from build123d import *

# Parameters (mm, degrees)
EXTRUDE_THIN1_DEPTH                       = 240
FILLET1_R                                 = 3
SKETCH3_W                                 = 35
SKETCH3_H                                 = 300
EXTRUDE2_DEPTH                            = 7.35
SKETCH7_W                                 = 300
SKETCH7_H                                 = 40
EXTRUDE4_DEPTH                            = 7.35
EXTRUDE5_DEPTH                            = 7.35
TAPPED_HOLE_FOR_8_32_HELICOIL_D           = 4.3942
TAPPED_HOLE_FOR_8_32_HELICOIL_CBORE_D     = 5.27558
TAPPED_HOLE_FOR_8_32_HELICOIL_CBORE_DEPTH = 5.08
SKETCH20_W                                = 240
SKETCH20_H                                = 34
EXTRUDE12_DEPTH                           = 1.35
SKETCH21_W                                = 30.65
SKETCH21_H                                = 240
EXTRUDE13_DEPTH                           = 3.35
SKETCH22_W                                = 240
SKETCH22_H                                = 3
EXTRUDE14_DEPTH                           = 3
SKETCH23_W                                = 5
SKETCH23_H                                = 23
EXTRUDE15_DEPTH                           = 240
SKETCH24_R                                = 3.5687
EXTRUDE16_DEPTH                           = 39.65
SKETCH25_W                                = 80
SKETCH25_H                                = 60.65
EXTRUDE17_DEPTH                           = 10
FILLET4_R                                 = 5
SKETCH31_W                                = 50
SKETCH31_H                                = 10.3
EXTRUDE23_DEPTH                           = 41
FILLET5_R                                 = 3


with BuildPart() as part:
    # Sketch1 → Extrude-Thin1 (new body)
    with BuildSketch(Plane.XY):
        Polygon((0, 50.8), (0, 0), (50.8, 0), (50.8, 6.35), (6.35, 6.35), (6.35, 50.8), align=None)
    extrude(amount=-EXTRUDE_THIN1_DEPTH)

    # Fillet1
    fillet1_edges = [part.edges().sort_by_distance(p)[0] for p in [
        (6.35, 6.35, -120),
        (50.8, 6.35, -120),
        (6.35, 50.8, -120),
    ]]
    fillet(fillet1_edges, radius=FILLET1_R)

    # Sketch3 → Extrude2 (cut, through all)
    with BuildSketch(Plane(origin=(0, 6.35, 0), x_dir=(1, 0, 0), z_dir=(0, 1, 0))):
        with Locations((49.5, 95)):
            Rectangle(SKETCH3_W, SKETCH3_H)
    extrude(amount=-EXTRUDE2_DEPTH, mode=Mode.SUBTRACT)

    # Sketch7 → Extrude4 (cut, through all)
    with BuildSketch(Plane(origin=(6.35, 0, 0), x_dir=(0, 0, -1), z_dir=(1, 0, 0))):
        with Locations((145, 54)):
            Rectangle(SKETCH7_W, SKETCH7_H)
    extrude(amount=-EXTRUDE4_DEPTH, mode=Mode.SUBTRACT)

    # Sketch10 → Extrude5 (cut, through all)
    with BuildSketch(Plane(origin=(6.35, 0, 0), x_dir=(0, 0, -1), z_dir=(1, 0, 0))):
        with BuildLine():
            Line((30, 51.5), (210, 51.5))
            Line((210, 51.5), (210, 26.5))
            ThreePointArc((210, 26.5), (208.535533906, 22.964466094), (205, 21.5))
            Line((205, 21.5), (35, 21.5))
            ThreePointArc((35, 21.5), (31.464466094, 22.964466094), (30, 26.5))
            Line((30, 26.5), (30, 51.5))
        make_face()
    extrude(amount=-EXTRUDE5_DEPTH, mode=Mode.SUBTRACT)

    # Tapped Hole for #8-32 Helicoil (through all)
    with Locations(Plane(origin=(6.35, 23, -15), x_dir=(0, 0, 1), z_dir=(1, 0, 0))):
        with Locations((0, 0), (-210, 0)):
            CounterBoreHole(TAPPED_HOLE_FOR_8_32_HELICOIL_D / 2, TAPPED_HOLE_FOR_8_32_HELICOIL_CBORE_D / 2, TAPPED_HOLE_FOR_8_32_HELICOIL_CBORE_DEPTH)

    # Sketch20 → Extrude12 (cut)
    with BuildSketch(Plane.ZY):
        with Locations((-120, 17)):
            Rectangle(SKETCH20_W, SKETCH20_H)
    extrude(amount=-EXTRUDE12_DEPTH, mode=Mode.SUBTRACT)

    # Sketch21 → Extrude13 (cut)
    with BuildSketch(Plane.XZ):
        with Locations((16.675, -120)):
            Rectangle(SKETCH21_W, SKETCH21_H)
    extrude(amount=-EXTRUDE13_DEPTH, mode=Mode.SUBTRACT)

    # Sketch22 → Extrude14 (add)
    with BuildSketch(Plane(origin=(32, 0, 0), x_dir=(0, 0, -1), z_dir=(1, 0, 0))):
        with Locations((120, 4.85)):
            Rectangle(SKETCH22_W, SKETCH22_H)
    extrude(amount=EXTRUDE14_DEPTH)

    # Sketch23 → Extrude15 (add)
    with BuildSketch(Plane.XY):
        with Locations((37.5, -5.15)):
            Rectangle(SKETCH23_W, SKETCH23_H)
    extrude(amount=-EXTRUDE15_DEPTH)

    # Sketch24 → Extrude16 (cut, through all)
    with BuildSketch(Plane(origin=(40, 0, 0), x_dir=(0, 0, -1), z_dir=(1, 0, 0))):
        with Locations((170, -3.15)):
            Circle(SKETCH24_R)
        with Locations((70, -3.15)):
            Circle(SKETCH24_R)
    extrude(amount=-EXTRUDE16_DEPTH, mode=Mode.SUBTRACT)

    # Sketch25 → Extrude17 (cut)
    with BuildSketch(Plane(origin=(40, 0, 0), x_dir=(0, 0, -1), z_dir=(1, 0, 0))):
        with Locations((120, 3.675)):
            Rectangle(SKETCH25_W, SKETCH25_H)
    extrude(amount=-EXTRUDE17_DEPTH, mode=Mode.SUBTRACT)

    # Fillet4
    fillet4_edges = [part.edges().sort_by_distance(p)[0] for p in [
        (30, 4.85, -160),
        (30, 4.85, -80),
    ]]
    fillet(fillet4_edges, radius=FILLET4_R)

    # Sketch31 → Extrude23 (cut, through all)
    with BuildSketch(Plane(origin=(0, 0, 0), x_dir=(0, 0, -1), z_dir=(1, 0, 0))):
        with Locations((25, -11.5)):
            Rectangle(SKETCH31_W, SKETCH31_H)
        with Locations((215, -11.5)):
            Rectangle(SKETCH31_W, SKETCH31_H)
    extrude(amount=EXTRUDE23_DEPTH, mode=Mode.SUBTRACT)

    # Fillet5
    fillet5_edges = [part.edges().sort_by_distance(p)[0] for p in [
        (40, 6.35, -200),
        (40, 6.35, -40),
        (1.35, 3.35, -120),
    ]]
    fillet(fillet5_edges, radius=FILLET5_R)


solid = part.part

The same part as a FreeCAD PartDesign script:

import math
import FreeCAD as App
import Part
import Sketcher

V = App.Vector


def edges_at(feature, points):
    """Names of the edges that pass closest to the given points."""
    edges = feature.Shape.Edges
    near = lambda p: min(range(len(edges)), key=lambda i: edges[i].distToShape(Part.Vertex(*p))[0])
    return sorted({f"Edge{near(p) + 1}" for p in points})

doc = App.newDocument("Part")
body = doc.addObject("PartDesign::Body", "Body")

# Sketch on XY plane
sketch1 = body.newObject("Sketcher::SketchObject", "Sketch")
sketch1.AttachmentSupport = (doc.getObject("XY_Plane"), [""])
sketch1.MapMode = "FlatFace"
sketch1.addGeometry(Part.LineSegment(V(0, 51, 0), V(0, 0, 0)), False)
sketch1.addGeometry(Part.LineSegment(V(0, 0, 0), V(51, 0, 0)), False)
sketch1.addGeometry(Part.LineSegment(V(51, 0, 0), V(51, 6, 0)), False)
sketch1.addGeometry(Part.LineSegment(V(51, 6, 0), V(6, 6, 0)), False)
sketch1.addGeometry(Part.LineSegment(V(6, 6, 0), V(6, 51, 0)), False)
sketch1.addGeometry(Part.LineSegment(V(6, 51, 0), V(0, 51, 0)), False)
sketch1.addConstraint(Sketcher.Constraint("Coincident", 0, 2, 1, 1))
sketch1.addConstraint(Sketcher.Constraint("Coincident", 1, 2, 2, 1))
sketch1.addConstraint(Sketcher.Constraint("Coincident", 2, 2, 3, 1))
sketch1.addConstraint(Sketcher.Constraint("Coincident", 3, 2, 4, 1))
sketch1.addConstraint(Sketcher.Constraint("Coincident", 4, 2, 5, 1))
sketch1.addConstraint(Sketcher.Constraint("Coincident", 5, 2, 0, 1))
sketch1.addConstraint(Sketcher.Constraint("Vertical", 0))
sketch1.addConstraint(Sketcher.Constraint("Horizontal", 1))
sketch1.addConstraint(Sketcher.Constraint("Vertical", 2))
sketch1.addConstraint(Sketcher.Constraint("Horizontal", 3))
sketch1.addConstraint(Sketcher.Constraint("Vertical", 4))
sketch1.addConstraint(Sketcher.Constraint("Horizontal", 5))
sketch1.addConstraint(Sketcher.Constraint("Coincident", 0, 2, -1, 1))
sketch1.addConstraint(Sketcher.Constraint("Equal", 1, 0))
sketch1.addConstraint(Sketcher.Constraint("Equal", 5, 2))
sketch1.addConstraint(Sketcher.Constraint("DistanceX", 1, 1, 1, 2, 50.8))
sketch1.addConstraint(Sketcher.Constraint("DistanceX", 3, 2, 3, 1, 44.45))
pad1 = body.newObject("PartDesign::Pad", "Pad")
pad1.Profile = sketch1
pad1.Length = 240
pad1.Reversed = True
doc.recompute()

fillet = body.newObject("PartDesign::Fillet", "Fillet")
fillet.Base = (pad1, edges_at(pad1, [(6.35, 6.35, -120), (50.8, 6.35, -120), (6.35, 50.8, -120)]))
fillet.Radius = 3

# Sketch on XZ plane
sketch2 = body.newObject("Sketcher::SketchObject", "Sketch001")
sketch2.AttachmentSupport = (doc.getObject("XZ_Plane"), [""])
sketch2.MapMode = "FlatFace"
sketch2.AttachmentOffset = App.Placement(V(0, 0, -6.35), App.Rotation())
sketch2.addGeometry(Part.LineSegment(V(32, -245, 0), V(32, 55, 0)), False)
sketch2.addGeometry(Part.LineSegment(V(32, 55, 0), V(67, 55, 0)), False)
sketch2.addGeometry(Part.LineSegment(V(67, 55, 0), V(67, -245, 0)), False)
sketch2.addGeometry(Part.LineSegment(V(67, -245, 0), V(32, -245, 0)), False)
sketch2.addConstraint(Sketcher.Constraint("Coincident", 0, 2, 1, 1))
sketch2.addConstraint(Sketcher.Constraint("Coincident", 1, 2, 2, 1))
sketch2.addConstraint(Sketcher.Constraint("Coincident", 2, 2, 3, 1))
sketch2.addConstraint(Sketcher.Constraint("Coincident", 3, 2, 0, 1))
sketch2.addConstraint(Sketcher.Constraint("Vertical", 0))
sketch2.addConstraint(Sketcher.Constraint("Horizontal", 1))
sketch2.addConstraint(Sketcher.Constraint("Vertical", 2))
sketch2.addConstraint(Sketcher.Constraint("Horizontal", 3))
sketch2.addConstraint(Sketcher.Constraint("DistanceX", 1, 1, 1, 2, 35.0))
sketch2.addConstraint(Sketcher.Constraint("DistanceY", 0, 1, 0, 2, 300.0))
sketch2.addConstraint(Sketcher.Constraint("DistanceX", -1, 1, 0, 2, 32.0))
sketch2.addConstraint(Sketcher.Constraint("DistanceY", -1, 1, 0, 2, 55.0))
pocket1 = body.newObject("PartDesign::Pocket", "Pocket")
pocket1.Profile = sketch2
pocket1.Type = "ThroughAll"
pocket1.Reversed = True

# Sketch on YZ plane
sketch3 = body.newObject("Sketcher::SketchObject", "Sketch002")
sketch3.AttachmentSupport = (doc.getObject("YZ_Plane"), [""])
sketch3.MapMode = "FlatFace"
sketch3.AttachmentOffset = App.Placement(V(0, 0, 6.35), App.Rotation())
sketch3.addGeometry(Part.LineSegment(V(74, 5, 0), V(34, 5, 0)), False)
sketch3.addGeometry(Part.LineSegment(V(34, 5, 0), V(34, -295, 0)), False)
sketch3.addGeometry(Part.LineSegment(V(34, -295, 0), V(74, -295, 0)), False)
sketch3.addGeometry(Part.LineSegment(V(74, -295, 0), V(74, 5, 0)), False)
sketch3.addConstraint(Sketcher.Constraint("Coincident", 0, 2, 1, 1))
sketch3.addConstraint(Sketcher.Constraint("Coincident", 1, 2, 2, 1))
sketch3.addConstraint(Sketcher.Constraint("Coincident", 2, 2, 3, 1))
sketch3.addConstraint(Sketcher.Constraint("Coincident", 3, 2, 0, 1))
sketch3.addConstraint(Sketcher.Constraint("Horizontal", 0))
sketch3.addConstraint(Sketcher.Constraint("Vertical", 1))
sketch3.addConstraint(Sketcher.Constraint("Horizontal", 2))
sketch3.addConstraint(Sketcher.Constraint("Vertical", 3))
sketch3.addConstraint(Sketcher.Constraint("DistanceX", 0, 2, 0, 1, 40.0))
sketch3.addConstraint(Sketcher.Constraint("DistanceY", 1, 2, 1, 1, 300.0))
sketch3.addConstraint(Sketcher.Constraint("DistanceX", -1, 1, 0, 2, 34.0))
sketch3.addConstraint(Sketcher.Constraint("DistanceY", -1, 1, 0, 2, 5.0))
pocket2 = body.newObject("PartDesign::Pocket", "Pocket001")
pocket2.Profile = sketch3
pocket2.Type = "ThroughAll"

# Sketch on YZ plane
sketch4 = body.newObject("Sketcher::SketchObject", "Sketch003")
sketch4.AttachmentSupport = (doc.getObject("YZ_Plane"), [""])
sketch4.MapMode = "FlatFace"
sketch4.AttachmentOffset = App.Placement(V(0, 0, 6.35), App.Rotation())
sketch4.addGeometry(Part.LineSegment(V(52, -210, 0), V(52, -30, 0)), False)
sketch4.addGeometry(Part.LineSegment(V(52, -30, 0), V(26, -30, 0)), False)
sketch4.addGeometry(Part.ArcOfCircle(Part.Circle(V(26, -35, 0), V(0, 0, 1), 5), math.radians(90), math.radians(180)), False)
sketch4.addGeometry(Part.LineSegment(V(22, -35, 0), V(22, -205, 0)), False)
sketch4.addGeometry(Part.ArcOfCircle(Part.Circle(V(26, -205, 0), V(0, 0, 1), 5), math.radians(180), math.radians(270)), False)
sketch4.addGeometry(Part.LineSegment(V(26, -210, 0), V(52, -210, 0)), False)
sketch4.addConstraint(Sketcher.Constraint("Coincident", 0, 2, 1, 1))
sketch4.addConstraint(Sketcher.Constraint("Tangent", 1, 2, 2, 1))
sketch4.addConstraint(Sketcher.Constraint("Tangent", 2, 2, 3, 1))
sketch4.addConstraint(Sketcher.Constraint("Tangent", 3, 2, 4, 1))
sketch4.addConstraint(Sketcher.Constraint("Tangent", 4, 2, 5, 1))
sketch4.addConstraint(Sketcher.Constraint("Coincident", 5, 2, 0, 1))
sketch4.addConstraint(Sketcher.Constraint("Vertical", 0))
sketch4.addConstraint(Sketcher.Constraint("Horizontal", 1))
sketch4.addConstraint(Sketcher.Constraint("Vertical", 3))
sketch4.addConstraint(Sketcher.Constraint("Horizontal", 5))
sketch4.addConstraint(Sketcher.Constraint("Equal", 2, 4))
sketch4.addConstraint(Sketcher.Constraint("Radius", 2, 5.0))
sketch4.addConstraint(Sketcher.Constraint("DistanceX", 1, 2, 1, 1, 25.0))
sketch4.addConstraint(Sketcher.Constraint("DistanceY", 0, 1, 0, 2, 180.0))
sketch4.addConstraint(Sketcher.Constraint("DistanceY", 2, 3, -1, 1, 35.0))
sketch4.addConstraint(Sketcher.Constraint("DistanceX", -1, 1, 2, 3, 26.5))
pocket3 = body.newObject("PartDesign::Pocket", "Pocket002")
pocket3.Profile = sketch4
pocket3.Type = "ThroughAll"

# Sketch on YZ plane
sketch5 = body.newObject("Sketcher::SketchObject", "Sketch004")
sketch5.AttachmentSupport = (doc.getObject("YZ_Plane"), [""])
sketch5.MapMode = "FlatFace"
sketch5.AttachmentOffset = App.Placement(V(0, 0, 6.35), App.Rotation())
sketch5.addGeometry(Part.Circle(V(23, -15, 0), V(0, 0, 1), 2.2), False)
sketch5.addGeometry(Part.Circle(V(23, -225, 0), V(0, 0, 1), 2.2), False)
sketch5.addConstraint(Sketcher.Constraint("Equal", 0, 1))
sketch5.addConstraint(Sketcher.Constraint("Vertical", 0, 3, 1, 3))
sketch5.addConstraint(Sketcher.Constraint("DistanceX", -1, 1, 0, 3, 23.0))
sketch5.addConstraint(Sketcher.Constraint("DistanceY", 0, 3, -1, 1, 15.0))
sketch5.addConstraint(Sketcher.Constraint("DistanceY", 1, 3, -1, 1, 225.0))
sketch5.addConstraint(Sketcher.Constraint("Diameter", 0, 4.3942))
doc.recompute()
hole = body.newObject("PartDesign::Hole", "Hole")
hole.Profile = sketch5
hole.ThreadType = "None"
hole.Diameter = 4.3942
hole.DepthType = "ThroughAll"
hole.HoleCutType = "Counterbore"
hole.HoleCutDiameter = 5.27558
hole.HoleCutDepth = 5.08

# Sketch on YZ plane
sketch6 = body.newObject("Sketcher::SketchObject", "Sketch005")
sketch6.AttachmentSupport = (doc.getObject("YZ_Plane"), [""])
sketch6.MapMode = "FlatFace"
sketch6.addGeometry(Part.LineSegment(V(34, -240, 0), V(0, -240, 0)), False)
sketch6.addGeometry(Part.LineSegment(V(0, -240, 0), V(0, 0, 0)), False)
sketch6.addGeometry(Part.LineSegment(V(0, 0, 0), V(34, 0, 0)), False)
sketch6.addGeometry(Part.LineSegment(V(34, 0, 0), V(34, -240, 0)), False)
sketch6.addConstraint(Sketcher.Constraint("Coincident", 0, 2, 1, 1))
sketch6.addConstraint(Sketcher.Constraint("Coincident", 1, 2, 2, 1))
sketch6.addConstraint(Sketcher.Constraint("Coincident", 2, 2, 3, 1))
sketch6.addConstraint(Sketcher.Constraint("Coincident", 3, 2, 0, 1))
sketch6.addConstraint(Sketcher.Constraint("Horizontal", 0))
sketch6.addConstraint(Sketcher.Constraint("Vertical", 1))
sketch6.addConstraint(Sketcher.Constraint("Horizontal", 2))
sketch6.addConstraint(Sketcher.Constraint("Vertical", 3))
sketch6.addConstraint(Sketcher.Constraint("Coincident", 1, 2, -1, 1))
sketch6.addConstraint(Sketcher.Constraint("DistanceX", 0, 2, 0, 1, 34.0))
sketch6.addConstraint(Sketcher.Constraint("DistanceY", 1, 1, 1, 2, 240.0))
pocket4 = body.newObject("PartDesign::Pocket", "Pocket003")
pocket4.Profile = sketch6
pocket4.Length = 1.35
pocket4.Reversed = True

# Sketch on XZ plane
sketch7 = body.newObject("Sketcher::SketchObject", "Sketch006")
sketch7.AttachmentSupport = (doc.getObject("XZ_Plane"), [""])
sketch7.MapMode = "FlatFace"
sketch7.addGeometry(Part.LineSegment(V(1, 0, 0), V(1, -240, 0)), False)
sketch7.addGeometry(Part.LineSegment(V(1, -240, 0), V(32, -240, 0)), False)
sketch7.addGeometry(Part.LineSegment(V(32, -240, 0), V(32, 0, 0)), False)
sketch7.addGeometry(Part.LineSegment(V(32, 0, 0), V(1, 0, 0)), False)
sketch7.addConstraint(Sketcher.Constraint("Coincident", 0, 2, 1, 1))
sketch7.addConstraint(Sketcher.Constraint("Coincident", 1, 2, 2, 1))
sketch7.addConstraint(Sketcher.Constraint("Coincident", 2, 2, 3, 1))
sketch7.addConstraint(Sketcher.Constraint("Coincident", 3, 2, 0, 1))
sketch7.addConstraint(Sketcher.Constraint("Vertical", 0))
sketch7.addConstraint(Sketcher.Constraint("Horizontal", 1))
sketch7.addConstraint(Sketcher.Constraint("Vertical", 2))
sketch7.addConstraint(Sketcher.Constraint("Horizontal", 3))
sketch7.addConstraint(Sketcher.Constraint("PointOnObject", 2, 2, -1))
sketch7.addConstraint(Sketcher.Constraint("DistanceY", 0, 2, 0, 1, 240.0))
sketch7.addConstraint(Sketcher.Constraint("DistanceX", -1, 1, 1, 2, 32.0))
sketch7.addConstraint(Sketcher.Constraint("DistanceX", 1, 1, 1, 2, 30.65))
pocket5 = body.newObject("PartDesign::Pocket", "Pocket004")
pocket5.Profile = sketch7
pocket5.Length = 3.35

# Sketch on YZ plane
sketch8 = body.newObject("Sketcher::SketchObject", "Sketch007")
sketch8.AttachmentSupport = (doc.getObject("YZ_Plane"), [""])
sketch8.MapMode = "FlatFace"
sketch8.AttachmentOffset = App.Placement(V(0, 0, 32), App.Rotation())
sketch8.addGeometry(Part.LineSegment(V(6.3, 0, 0), V(3.4, 0, 0)), False)
sketch8.addGeometry(Part.LineSegment(V(3.4, 0, 0), V(3.4, -240, 0)), False)
sketch8.addGeometry(Part.LineSegment(V(3.4, -240, 0), V(6.3, -240, 0)), False)
sketch8.addGeometry(Part.LineSegment(V(6.3, -240, 0), V(6.3, 0, 0)), False)
sketch8.addConstraint(Sketcher.Constraint("Coincident", 0, 2, 1, 1))
sketch8.addConstraint(Sketcher.Constraint("Coincident", 1, 2, 2, 1))
sketch8.addConstraint(Sketcher.Constraint("Coincident", 2, 2, 3, 1))
sketch8.addConstraint(Sketcher.Constraint("Coincident", 3, 2, 0, 1))
sketch8.addConstraint(Sketcher.Constraint("Horizontal", 0))
sketch8.addConstraint(Sketcher.Constraint("Vertical", 1))
sketch8.addConstraint(Sketcher.Constraint("Horizontal", 2))
sketch8.addConstraint(Sketcher.Constraint("Vertical", 3))
sketch8.addConstraint(Sketcher.Constraint("PointOnObject", 0, 2, -1))
sketch8.addConstraint(Sketcher.Constraint("DistanceX", 0, 2, 0, 1, 3.0))
sketch8.addConstraint(Sketcher.Constraint("DistanceY", 1, 2, 1, 1, 240.0))
sketch8.addConstraint(Sketcher.Constraint("DistanceX", -1, 1, 0, 2, 3.35))
pad2 = body.newObject("PartDesign::Pad", "Pad001")
pad2.Profile = sketch8
pad2.Length = 3

# Sketch on XY plane
sketch9 = body.newObject("Sketcher::SketchObject", "Sketch008")
sketch9.AttachmentSupport = (doc.getObject("XY_Plane"), [""])
sketch9.MapMode = "FlatFace"
sketch9.addGeometry(Part.LineSegment(V(35, 6, 0), V(35, -17, 0)), False)
sketch9.addGeometry(Part.LineSegment(V(35, -17, 0), V(40, -17, 0)), False)
sketch9.addGeometry(Part.LineSegment(V(40, -17, 0), V(40, 6, 0)), False)
sketch9.addGeometry(Part.LineSegment(V(40, 6, 0), V(35, 6, 0)), False)
sketch9.addConstraint(Sketcher.Constraint("Coincident", 0, 2, 1, 1))
sketch9.addConstraint(Sketcher.Constraint("Coincident", 1, 2, 2, 1))
sketch9.addConstraint(Sketcher.Constraint("Coincident", 2, 2, 3, 1))
sketch9.addConstraint(Sketcher.Constraint("Coincident", 3, 2, 0, 1))
sketch9.addConstraint(Sketcher.Constraint("Vertical", 0))
sketch9.addConstraint(Sketcher.Constraint("Horizontal", 1))
sketch9.addConstraint(Sketcher.Constraint("Vertical", 2))
sketch9.addConstraint(Sketcher.Constraint("Horizontal", 3))
sketch9.addConstraint(Sketcher.Constraint("DistanceX", 1, 1, 1, 2, 5.0))
sketch9.addConstraint(Sketcher.Constraint("DistanceY", 0, 2, 0, 1, 23.0))
sketch9.addConstraint(Sketcher.Constraint("DistanceX", -1, 1, 0, 2, 35.0))
sketch9.addConstraint(Sketcher.Constraint("DistanceY", 0, 2, -1, 1, 16.65))
pad3 = body.newObject("PartDesign::Pad", "Pad002")
pad3.Profile = sketch9
pad3.Length = 240
pad3.Reversed = True

# Sketch on YZ plane
sketch10 = body.newObject("Sketcher::SketchObject", "Sketch009")
sketch10.AttachmentSupport = (doc.getObject("YZ_Plane"), [""])
sketch10.MapMode = "FlatFace"
sketch10.AttachmentOffset = App.Placement(V(0, 0, 40), App.Rotation())
sketch10.addGeometry(Part.Circle(V(-3.1, -170, 0), V(0, 0, 1), 3.6), False)
sketch10.addGeometry(Part.Circle(V(-3.1, -70, 0), V(0, 0, 1), 3.6), False)
sketch10.addConstraint(Sketcher.Constraint("Equal", 0, 1))
sketch10.addConstraint(Sketcher.Constraint("Vertical", 0, 3, 1, 3))
sketch10.addConstraint(Sketcher.Constraint("DistanceY", 0, 3, -1, 1, 170.0))
sketch10.addConstraint(Sketcher.Constraint("DistanceY", 1, 3, -1, 1, 70.0))
sketch10.addConstraint(Sketcher.Constraint("Diameter", 0, 7.1374))
sketch10.addConstraint(Sketcher.Constraint("DistanceX", 0, 3, -1, 1, 3.15))
pocket6 = body.newObject("PartDesign::Pocket", "Pocket005")
pocket6.Profile = sketch10
pocket6.Type = "ThroughAll"

# Sketch on YZ plane
sketch11 = body.newObject("Sketcher::SketchObject", "Sketch010")
sketch11.AttachmentSupport = (doc.getObject("YZ_Plane"), [""])
sketch11.MapMode = "FlatFace"
sketch11.AttachmentOffset = App.Placement(V(0, 0, 40), App.Rotation())
sketch11.addGeometry(Part.LineSegment(V(34, -80, 0), V(-27, -80, 0)), False)
sketch11.addGeometry(Part.LineSegment(V(-27, -80, 0), V(-27, -160, 0)), False)
sketch11.addGeometry(Part.LineSegment(V(-27, -160, 0), V(34, -160, 0)), False)
sketch11.addGeometry(Part.LineSegment(V(34, -160, 0), V(34, -80, 0)), False)
sketch11.addConstraint(Sketcher.Constraint("Coincident", 0, 2, 1, 1))
sketch11.addConstraint(Sketcher.Constraint("Coincident", 1, 2, 2, 1))
sketch11.addConstraint(Sketcher.Constraint("Coincident", 2, 2, 3, 1))
sketch11.addConstraint(Sketcher.Constraint("Coincident", 3, 2, 0, 1))
sketch11.addConstraint(Sketcher.Constraint("Horizontal", 0))
sketch11.addConstraint(Sketcher.Constraint("Vertical", 1))
sketch11.addConstraint(Sketcher.Constraint("Horizontal", 2))
sketch11.addConstraint(Sketcher.Constraint("Vertical", 3))
sketch11.addConstraint(Sketcher.Constraint("DistanceY", 1, 2, 1, 1, 80.0))
sketch11.addConstraint(Sketcher.Constraint("DistanceY", 0, 2, -1, 1, 80.0))
sketch11.addConstraint(Sketcher.Constraint("DistanceX", -1, 1, 2, 2, 34.0))
sketch11.addConstraint(Sketcher.Constraint("DistanceX", 0, 2, 0, 1, 60.65))
pocket7 = body.newObject("PartDesign::Pocket", "Pocket006")
pocket7.Profile = sketch11
pocket7.Length = 10
doc.recompute()

fillet2 = body.newObject("PartDesign::Fillet", "Fillet001")
fillet2.Base = (pocket7, edges_at(pocket7, [(30, 4.85, -160), (30, 4.85, -80)]))
fillet2.Radius = 5

# Sketch on YZ plane
sketch12 = body.newObject("Sketcher::SketchObject", "Sketch011")
sketch12.AttachmentSupport = (doc.getObject("YZ_Plane"), [""])
sketch12.MapMode = "FlatFace"
sketch12.addGeometry(Part.LineSegment(V(-6, 0, 0), V(-17, 0, 0)), False)
sketch12.addGeometry(Part.LineSegment(V(-17, 0, 0), V(-17, -50, 0)), False)
sketch12.addGeometry(Part.LineSegment(V(-17, -50, 0), V(-6, -50, 0)), False)
sketch12.addGeometry(Part.LineSegment(V(-6, -50, 0), V(-6, 0, 0)), False)
sketch12.addGeometry(Part.LineSegment(V(-6, -190, 0), V(-17, -190, 0)), False)
sketch12.addGeometry(Part.LineSegment(V(-17, -190, 0), V(-17, -240, 0)), False)
sketch12.addGeometry(Part.LineSegment(V(-17, -240, 0), V(-6, -240, 0)), False)
sketch12.addGeometry(Part.LineSegment(V(-6, -240, 0), V(-6, -190, 0)), False)
sketch12.addConstraint(Sketcher.Constraint("Coincident", 0, 2, 1, 1))
sketch12.addConstraint(Sketcher.Constraint("Coincident", 1, 2, 2, 1))
sketch12.addConstraint(Sketcher.Constraint("Coincident", 2, 2, 3, 1))
sketch12.addConstraint(Sketcher.Constraint("Coincident", 3, 2, 0, 1))
sketch12.addConstraint(Sketcher.Constraint("Coincident", 4, 2, 5, 1))
sketch12.addConstraint(Sketcher.Constraint("Coincident", 5, 2, 6, 1))
sketch12.addConstraint(Sketcher.Constraint("Coincident", 6, 2, 7, 1))
sketch12.addConstraint(Sketcher.Constraint("Coincident", 7, 2, 4, 1))
sketch12.addConstraint(Sketcher.Constraint("Horizontal", 0))
sketch12.addConstraint(Sketcher.Constraint("Vertical", 1))
sketch12.addConstraint(Sketcher.Constraint("Horizontal", 2))
sketch12.addConstraint(Sketcher.Constraint("Vertical", 3))
sketch12.addConstraint(Sketcher.Constraint("Horizontal", 4))
sketch12.addConstraint(Sketcher.Constraint("Vertical", 5))
sketch12.addConstraint(Sketcher.Constraint("Horizontal", 6))
sketch12.addConstraint(Sketcher.Constraint("Vertical", 7))
sketch12.addConstraint(Sketcher.Constraint("PointOnObject", 0, 2, -1))
sketch12.addConstraint(Sketcher.Constraint("Vertical", 1, 2, 4, 2))
sketch12.addConstraint(Sketcher.Constraint("Vertical", 3, 2, 6, 2))
sketch12.addConstraint(Sketcher.Constraint("Equal", 3, 5))
sketch12.addConstraint(Sketcher.Constraint("DistanceY", 1, 2, 1, 1, 50.0))
sketch12.addConstraint(Sketcher.Constraint("DistanceX", 0, 2, 0, 1, 10.3))
sketch12.addConstraint(Sketcher.Constraint("DistanceY", 4, 2, -1, 1, 190.0))
sketch12.addConstraint(Sketcher.Constraint("DistanceX", 0, 2, -1, 1, 16.65))
pocket8 = body.newObject("PartDesign::Pocket", "Pocket007")
pocket8.Profile = sketch12
pocket8.Type = "ThroughAll"
pocket8.Reversed = True
doc.recompute()

fillet3 = body.newObject("PartDesign::Fillet", "Fillet002")
fillet3.Base = (pocket8, edges_at(pocket8, [(40, 6.35, -200), (40, 6.35, -40), (1.35, 3.35, -120)]))
fillet3.Radius = 3

doc.recompute()
